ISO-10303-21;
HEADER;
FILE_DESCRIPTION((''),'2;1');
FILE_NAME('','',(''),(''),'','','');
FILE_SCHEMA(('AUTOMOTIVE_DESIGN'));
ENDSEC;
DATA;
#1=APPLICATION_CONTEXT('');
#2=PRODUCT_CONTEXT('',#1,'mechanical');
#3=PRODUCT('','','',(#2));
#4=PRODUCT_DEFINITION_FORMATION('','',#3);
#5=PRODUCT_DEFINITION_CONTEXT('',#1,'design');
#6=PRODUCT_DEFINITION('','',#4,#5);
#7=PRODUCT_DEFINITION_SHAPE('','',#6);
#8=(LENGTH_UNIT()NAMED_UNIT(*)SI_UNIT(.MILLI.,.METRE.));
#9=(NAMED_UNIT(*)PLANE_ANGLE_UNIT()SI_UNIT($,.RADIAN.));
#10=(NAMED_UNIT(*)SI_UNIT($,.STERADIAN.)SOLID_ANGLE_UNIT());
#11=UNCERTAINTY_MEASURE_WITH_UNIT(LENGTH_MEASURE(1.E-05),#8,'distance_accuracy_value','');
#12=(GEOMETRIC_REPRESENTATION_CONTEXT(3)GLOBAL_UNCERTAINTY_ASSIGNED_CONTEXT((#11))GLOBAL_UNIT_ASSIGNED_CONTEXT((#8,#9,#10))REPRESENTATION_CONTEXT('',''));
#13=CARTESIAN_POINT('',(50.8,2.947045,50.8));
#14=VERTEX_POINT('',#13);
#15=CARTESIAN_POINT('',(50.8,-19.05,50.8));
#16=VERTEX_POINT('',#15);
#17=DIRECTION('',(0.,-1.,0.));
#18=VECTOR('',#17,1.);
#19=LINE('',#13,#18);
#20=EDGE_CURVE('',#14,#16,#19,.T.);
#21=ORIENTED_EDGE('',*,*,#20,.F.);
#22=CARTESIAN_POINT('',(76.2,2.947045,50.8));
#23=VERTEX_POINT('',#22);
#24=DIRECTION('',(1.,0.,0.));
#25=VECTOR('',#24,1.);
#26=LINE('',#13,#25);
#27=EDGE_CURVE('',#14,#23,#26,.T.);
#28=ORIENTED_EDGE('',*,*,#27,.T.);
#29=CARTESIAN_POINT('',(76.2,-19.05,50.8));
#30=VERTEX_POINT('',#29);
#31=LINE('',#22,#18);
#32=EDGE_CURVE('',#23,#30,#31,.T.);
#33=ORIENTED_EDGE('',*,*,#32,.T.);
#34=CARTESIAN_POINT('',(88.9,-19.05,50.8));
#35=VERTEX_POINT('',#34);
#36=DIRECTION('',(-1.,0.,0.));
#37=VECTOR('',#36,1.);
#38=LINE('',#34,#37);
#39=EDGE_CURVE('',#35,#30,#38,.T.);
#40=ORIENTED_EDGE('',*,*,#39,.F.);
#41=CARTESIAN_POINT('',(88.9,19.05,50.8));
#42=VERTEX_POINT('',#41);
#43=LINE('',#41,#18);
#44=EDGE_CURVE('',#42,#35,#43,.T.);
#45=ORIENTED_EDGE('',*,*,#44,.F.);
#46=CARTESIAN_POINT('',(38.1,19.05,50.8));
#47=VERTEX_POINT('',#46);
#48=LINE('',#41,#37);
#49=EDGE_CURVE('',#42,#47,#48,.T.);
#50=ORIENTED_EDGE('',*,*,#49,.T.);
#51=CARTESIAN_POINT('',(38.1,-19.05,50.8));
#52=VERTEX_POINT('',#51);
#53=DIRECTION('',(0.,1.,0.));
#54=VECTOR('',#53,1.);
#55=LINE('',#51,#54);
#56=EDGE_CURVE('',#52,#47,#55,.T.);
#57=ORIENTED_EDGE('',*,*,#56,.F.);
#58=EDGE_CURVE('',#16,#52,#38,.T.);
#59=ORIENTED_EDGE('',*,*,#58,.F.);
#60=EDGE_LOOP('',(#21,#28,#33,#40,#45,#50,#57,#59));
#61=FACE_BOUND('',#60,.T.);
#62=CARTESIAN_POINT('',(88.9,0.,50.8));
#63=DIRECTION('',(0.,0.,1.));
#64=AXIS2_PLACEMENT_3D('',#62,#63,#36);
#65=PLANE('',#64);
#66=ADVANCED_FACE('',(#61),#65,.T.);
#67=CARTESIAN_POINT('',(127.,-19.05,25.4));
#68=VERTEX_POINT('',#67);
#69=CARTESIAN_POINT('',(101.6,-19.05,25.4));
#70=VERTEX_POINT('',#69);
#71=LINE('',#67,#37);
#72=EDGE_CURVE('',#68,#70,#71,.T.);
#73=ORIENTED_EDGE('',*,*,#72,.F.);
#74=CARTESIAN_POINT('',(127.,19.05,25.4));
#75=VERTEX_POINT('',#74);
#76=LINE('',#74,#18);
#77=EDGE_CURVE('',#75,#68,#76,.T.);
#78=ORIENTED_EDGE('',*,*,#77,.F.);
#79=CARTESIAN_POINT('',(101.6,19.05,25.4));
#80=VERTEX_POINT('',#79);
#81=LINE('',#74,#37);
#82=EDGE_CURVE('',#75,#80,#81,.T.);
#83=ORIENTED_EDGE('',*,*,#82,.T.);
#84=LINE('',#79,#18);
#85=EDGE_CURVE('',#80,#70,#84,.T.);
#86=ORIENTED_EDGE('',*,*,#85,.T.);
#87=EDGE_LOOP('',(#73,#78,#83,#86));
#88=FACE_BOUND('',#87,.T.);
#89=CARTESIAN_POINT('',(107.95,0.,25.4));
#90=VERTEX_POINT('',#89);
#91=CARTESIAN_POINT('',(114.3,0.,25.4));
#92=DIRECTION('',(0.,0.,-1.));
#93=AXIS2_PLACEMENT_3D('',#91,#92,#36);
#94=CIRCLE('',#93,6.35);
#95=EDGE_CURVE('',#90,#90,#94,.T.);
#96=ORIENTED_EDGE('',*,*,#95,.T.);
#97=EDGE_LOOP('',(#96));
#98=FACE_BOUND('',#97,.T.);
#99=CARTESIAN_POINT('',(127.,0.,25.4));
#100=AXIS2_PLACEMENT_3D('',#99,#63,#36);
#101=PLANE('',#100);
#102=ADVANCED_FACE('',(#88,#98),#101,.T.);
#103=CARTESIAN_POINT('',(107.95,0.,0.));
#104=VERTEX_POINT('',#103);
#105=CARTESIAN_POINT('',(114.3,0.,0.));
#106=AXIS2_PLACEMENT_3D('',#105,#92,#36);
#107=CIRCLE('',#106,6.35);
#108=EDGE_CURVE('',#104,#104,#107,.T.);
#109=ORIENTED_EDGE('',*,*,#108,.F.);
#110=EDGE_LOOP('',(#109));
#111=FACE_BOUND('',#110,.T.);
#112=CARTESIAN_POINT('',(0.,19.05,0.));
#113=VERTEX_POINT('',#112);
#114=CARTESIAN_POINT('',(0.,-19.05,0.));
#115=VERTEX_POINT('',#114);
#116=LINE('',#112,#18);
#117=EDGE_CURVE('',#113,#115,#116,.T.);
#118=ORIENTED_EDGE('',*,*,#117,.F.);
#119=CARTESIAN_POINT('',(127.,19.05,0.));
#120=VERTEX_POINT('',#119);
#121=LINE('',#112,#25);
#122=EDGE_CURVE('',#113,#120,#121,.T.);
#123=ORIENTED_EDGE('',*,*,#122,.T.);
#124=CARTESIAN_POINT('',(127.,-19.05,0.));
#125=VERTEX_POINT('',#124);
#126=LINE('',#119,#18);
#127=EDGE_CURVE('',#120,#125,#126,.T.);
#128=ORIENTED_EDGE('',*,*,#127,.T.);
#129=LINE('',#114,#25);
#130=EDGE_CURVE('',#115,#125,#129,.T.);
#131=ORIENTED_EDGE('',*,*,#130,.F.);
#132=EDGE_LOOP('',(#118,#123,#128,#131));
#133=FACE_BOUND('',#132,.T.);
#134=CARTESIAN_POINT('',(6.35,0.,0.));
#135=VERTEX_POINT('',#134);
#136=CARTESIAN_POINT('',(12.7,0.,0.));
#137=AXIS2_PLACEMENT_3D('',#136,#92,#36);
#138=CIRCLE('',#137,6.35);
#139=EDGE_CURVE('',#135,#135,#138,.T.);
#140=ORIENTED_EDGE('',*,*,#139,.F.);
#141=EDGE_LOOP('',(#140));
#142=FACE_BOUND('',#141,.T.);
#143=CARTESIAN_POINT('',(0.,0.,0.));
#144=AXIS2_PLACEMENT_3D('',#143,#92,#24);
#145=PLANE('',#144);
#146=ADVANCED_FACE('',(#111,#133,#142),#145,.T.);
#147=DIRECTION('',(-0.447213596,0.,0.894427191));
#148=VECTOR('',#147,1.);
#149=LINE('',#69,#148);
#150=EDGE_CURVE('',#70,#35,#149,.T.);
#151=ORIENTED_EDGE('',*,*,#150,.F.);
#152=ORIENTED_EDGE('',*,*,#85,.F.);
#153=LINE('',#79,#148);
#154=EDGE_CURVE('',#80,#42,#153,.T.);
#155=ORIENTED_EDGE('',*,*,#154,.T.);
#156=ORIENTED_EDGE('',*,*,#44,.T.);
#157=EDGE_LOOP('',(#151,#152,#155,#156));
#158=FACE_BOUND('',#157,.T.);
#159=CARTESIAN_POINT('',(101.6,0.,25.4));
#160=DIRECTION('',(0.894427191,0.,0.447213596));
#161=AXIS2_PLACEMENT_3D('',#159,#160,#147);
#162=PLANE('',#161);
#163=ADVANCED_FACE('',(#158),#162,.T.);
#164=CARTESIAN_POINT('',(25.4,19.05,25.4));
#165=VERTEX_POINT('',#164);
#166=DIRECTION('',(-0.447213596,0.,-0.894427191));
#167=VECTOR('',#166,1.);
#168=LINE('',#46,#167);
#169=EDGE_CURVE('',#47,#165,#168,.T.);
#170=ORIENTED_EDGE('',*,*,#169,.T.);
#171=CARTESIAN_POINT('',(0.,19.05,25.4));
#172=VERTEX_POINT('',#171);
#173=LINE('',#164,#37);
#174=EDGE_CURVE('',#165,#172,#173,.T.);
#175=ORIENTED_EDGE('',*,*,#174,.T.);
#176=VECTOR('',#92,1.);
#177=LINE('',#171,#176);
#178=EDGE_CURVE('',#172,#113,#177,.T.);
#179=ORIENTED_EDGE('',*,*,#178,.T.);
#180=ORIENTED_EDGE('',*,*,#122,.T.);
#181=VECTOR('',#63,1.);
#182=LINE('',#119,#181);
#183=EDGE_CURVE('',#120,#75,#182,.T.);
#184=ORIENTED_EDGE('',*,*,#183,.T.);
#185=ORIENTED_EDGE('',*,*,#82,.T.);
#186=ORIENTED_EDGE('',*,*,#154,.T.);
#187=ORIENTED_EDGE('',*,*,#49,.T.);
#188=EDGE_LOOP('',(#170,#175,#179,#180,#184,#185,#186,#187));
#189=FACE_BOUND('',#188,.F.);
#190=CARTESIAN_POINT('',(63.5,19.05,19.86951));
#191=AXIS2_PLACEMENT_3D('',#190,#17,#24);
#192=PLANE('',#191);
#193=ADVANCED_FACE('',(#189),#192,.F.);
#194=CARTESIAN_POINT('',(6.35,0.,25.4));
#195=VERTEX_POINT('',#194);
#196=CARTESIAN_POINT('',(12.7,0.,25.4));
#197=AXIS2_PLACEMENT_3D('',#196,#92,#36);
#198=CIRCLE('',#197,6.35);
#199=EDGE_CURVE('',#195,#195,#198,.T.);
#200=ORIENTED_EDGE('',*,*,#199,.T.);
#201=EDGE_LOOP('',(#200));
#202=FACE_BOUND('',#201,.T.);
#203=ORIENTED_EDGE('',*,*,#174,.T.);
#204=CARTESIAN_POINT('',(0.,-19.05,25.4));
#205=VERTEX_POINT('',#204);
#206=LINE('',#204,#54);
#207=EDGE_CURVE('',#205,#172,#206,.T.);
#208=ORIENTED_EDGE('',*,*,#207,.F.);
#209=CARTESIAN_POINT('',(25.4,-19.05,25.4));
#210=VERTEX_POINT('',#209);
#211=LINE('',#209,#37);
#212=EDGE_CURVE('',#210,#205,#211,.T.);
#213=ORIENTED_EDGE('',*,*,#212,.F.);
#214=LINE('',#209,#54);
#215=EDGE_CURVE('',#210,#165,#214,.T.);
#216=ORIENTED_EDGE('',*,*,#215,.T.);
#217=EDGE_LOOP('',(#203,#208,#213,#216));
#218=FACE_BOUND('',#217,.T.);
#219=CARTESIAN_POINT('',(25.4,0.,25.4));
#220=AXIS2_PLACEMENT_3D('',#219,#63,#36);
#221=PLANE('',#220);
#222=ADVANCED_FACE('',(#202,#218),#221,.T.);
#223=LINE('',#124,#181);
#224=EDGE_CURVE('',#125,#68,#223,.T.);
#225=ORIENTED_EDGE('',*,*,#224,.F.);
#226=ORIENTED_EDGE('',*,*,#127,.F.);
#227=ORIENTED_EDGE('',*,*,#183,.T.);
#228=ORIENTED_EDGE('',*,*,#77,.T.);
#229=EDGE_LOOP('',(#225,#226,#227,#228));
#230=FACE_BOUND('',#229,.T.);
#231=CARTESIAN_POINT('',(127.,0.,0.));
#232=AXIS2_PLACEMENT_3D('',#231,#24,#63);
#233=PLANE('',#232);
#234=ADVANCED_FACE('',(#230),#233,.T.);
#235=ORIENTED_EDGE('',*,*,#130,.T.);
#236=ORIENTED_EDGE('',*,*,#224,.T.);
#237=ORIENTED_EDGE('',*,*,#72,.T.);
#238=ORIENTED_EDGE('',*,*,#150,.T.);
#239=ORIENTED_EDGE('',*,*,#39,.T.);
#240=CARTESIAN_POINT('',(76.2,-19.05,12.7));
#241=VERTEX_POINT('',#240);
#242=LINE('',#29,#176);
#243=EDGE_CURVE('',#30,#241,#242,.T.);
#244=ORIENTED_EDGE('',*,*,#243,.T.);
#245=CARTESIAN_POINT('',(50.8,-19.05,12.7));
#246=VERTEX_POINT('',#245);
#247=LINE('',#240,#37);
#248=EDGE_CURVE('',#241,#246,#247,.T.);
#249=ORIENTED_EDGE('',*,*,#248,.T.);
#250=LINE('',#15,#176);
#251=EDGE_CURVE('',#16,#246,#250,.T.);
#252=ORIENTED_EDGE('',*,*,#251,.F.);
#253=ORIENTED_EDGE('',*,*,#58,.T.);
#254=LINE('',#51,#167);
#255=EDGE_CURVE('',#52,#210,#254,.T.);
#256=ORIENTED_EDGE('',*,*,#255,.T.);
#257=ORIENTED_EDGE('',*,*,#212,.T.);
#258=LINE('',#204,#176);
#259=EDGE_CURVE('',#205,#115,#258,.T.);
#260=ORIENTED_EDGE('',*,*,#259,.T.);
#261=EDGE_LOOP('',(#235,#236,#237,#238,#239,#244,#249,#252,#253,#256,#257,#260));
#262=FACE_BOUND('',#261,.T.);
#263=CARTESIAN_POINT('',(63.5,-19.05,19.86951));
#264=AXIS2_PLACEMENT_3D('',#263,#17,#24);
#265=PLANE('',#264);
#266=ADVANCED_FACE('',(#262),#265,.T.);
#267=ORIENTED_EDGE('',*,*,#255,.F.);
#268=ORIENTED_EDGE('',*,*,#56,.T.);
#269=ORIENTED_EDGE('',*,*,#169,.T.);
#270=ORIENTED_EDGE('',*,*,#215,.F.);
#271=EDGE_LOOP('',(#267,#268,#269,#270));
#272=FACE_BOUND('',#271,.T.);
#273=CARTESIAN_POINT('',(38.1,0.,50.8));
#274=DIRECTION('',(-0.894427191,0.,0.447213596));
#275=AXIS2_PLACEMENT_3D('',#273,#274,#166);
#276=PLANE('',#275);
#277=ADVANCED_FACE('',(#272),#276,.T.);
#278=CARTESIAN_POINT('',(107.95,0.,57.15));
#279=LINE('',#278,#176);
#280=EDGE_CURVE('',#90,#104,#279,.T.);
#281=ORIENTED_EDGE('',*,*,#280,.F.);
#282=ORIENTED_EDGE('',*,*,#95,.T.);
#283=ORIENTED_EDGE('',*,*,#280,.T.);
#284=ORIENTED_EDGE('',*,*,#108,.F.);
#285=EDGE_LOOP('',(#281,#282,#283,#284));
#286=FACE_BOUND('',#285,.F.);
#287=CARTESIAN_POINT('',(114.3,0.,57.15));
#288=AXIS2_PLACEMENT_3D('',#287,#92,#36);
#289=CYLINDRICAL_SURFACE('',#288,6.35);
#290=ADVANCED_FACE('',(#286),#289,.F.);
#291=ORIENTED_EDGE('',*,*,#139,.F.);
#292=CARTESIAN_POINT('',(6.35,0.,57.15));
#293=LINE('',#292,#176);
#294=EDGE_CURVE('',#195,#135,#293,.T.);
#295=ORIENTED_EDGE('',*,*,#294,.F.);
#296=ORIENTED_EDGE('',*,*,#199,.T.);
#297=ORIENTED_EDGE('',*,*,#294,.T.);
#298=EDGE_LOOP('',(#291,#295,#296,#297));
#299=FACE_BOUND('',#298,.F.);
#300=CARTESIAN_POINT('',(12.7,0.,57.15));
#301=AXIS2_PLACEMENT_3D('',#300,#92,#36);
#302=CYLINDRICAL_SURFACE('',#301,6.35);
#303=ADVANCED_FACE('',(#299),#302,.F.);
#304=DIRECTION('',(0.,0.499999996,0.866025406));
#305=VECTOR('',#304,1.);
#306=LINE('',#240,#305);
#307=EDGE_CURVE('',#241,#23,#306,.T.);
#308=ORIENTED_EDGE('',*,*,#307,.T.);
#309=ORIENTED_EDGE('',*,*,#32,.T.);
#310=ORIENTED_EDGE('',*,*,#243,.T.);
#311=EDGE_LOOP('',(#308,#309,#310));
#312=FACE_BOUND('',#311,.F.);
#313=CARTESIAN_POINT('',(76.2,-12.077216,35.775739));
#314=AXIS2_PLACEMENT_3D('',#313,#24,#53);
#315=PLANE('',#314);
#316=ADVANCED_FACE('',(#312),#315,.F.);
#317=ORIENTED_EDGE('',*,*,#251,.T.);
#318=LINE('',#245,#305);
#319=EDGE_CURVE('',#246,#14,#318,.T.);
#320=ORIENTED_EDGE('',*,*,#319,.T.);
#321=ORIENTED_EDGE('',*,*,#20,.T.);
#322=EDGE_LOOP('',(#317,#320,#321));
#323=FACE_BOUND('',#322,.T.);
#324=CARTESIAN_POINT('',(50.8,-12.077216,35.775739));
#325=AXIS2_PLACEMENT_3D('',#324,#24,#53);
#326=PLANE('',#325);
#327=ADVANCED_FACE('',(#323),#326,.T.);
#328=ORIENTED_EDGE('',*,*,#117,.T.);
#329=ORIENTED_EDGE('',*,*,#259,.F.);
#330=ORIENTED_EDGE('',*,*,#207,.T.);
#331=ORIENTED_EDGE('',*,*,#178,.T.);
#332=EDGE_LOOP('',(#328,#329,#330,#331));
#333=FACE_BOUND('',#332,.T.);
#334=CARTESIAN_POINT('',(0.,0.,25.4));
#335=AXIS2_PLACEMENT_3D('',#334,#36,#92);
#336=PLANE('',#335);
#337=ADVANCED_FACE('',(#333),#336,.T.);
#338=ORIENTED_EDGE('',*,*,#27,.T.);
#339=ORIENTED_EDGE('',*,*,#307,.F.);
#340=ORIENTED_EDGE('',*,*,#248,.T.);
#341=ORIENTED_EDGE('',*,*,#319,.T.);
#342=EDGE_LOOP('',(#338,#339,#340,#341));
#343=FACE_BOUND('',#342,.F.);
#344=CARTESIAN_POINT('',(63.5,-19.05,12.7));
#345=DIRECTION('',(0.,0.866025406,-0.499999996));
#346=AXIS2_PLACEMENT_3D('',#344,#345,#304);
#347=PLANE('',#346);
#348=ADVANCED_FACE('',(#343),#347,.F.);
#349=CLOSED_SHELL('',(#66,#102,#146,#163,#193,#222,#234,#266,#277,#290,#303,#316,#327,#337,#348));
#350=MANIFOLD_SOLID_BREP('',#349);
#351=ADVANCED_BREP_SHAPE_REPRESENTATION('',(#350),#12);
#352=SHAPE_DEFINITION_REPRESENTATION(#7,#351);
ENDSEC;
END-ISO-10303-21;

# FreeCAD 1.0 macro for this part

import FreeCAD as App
import Part
import Sketcher
from FreeCAD import Vector
Q = App.Units.Quantity


def add_polygon(sketch, points):
    """Adds a closed chain of lines whose ends are joined by coincident constraints."""
    first, n = sketch.GeometryCount, len(points)
    for a, b in zip(points, points[1:] + points[:1]):
        sketch.addGeometry(Part.LineSegment(App.Vector(*a, 0), App.Vector(*b, 0)), False)
    for i in range(n):
        sketch.addConstraint(Sketcher.Constraint("Coincident", first + i, 2, first + (i + 1) % n, 1))

doc = App.newDocument("Part")
params = doc.addObject("Spreadsheet::Sheet", "Params")
for row, (alias, value) in enumerate([
    ("sketch1_width", "5 in"),
    ("sketch1_width2", "1 in"),
    ("sketch1_width3", "2 in"),
    ("pad1_length", "1.5 in"),
    ("sketch2_diameter", "0.5 in"),
    ("hole_diameter", "0.5 in"),
    ("hole_depth", "1.25 in"),
    ("sketch3_height", "1.5 in"),
    ("pocket1_length", "1 in"),
], start=1):
    params.set(f"A{row}", alias)
    params.set(f"B{row}", "=" + value)
    params.setAlias(f"B{row}", alias)

body = doc.addObject("PartDesign::Body", "Body")

# Sketch on XZ plane
sketch1 = body.newObject("Sketcher::SketchObject", "Sketch")
sketch1.AttachmentSupport = (doc.getObject("XZ_Plane"), [""])
sketch1.MapMode = "FlatFace"
add_polygon(sketch1, [(0, 25), (0, 0), (127, 0), (127, 25), (102, 25), (89, 51), (38, 51), (25, 25)])  # lines 0-7
sketch1.addConstraint([
    Sketcher.Constraint("Vertical", 0),
    Sketcher.Constraint("Horizontal", 1),
    Sketcher.Constraint("Vertical", 2),
    Sketcher.Constraint("Horizontal", 3),
    Sketcher.Constraint("Horizontal", 5),
    Sketcher.Constraint("Horizontal", 7),
    Sketcher.Constraint("Coincident", 0, 2, -1, 1),
    Sketcher.Constraint("Horizontal", 3, 2, 6, 2),
    Sketcher.Constraint("Equal", 3, 7),
    Sketcher.Constraint("Equal", 7, 0),
    Sketcher.Constraint("Equal", 4, 6),
    Sketcher.Constraint("DistanceX", 1, 1, 1, 2, Q("5 in")),
    Sketcher.Constraint("DistanceX", 3, 2, 3, 1, Q("1 in")),
    Sketcher.Constraint("DistanceX", 5, 2, 5, 1, Q("2 in")),
    Sketcher.Constraint("DistanceY", -1, 1, 4, 2, Q("2 in")),
])
sketch1.setExpression("Constraints[19]", "Params.sketch1_width")
sketch1.setExpression("Constraints[20]", "Params.sketch1_width2")
sketch1.setExpression("Constraints[21]", "Params.sketch1_width3")
pad1 = body.newObject("PartDesign::Pad", "Pad")
pad1.Profile = sketch1
pad1.setExpression("Length", "Params.pad1_length")
pad1.Midplane = True

# Sketch on XY plane
sketch2 = body.newObject("Sketcher::SketchObject", "Sketch001")
sketch2.AttachmentSupport = (doc.getObject("XY_Plane"), [""])
sketch2.MapMode = "FlatFace"
sketch2.AttachmentOffset = App.Placement(Vector(0, 0, 1 * 25.4), App.Rotation())
sketch2.addGeometry([
    Part.Circle(Vector(13, 0, 0), Vector(0, 0, 1), 6),
    Part.Circle(Vector(114, 0, 0), Vector(0, 0, 1), 6),
], False)
sketch2.addConstraint([
    Sketcher.Constraint("Equal", 0, 1),
    Sketcher.Constraint("PointOnObject", 0, 3, -1),
    Sketcher.Constraint("PointOnObject", 1, 3, -1),
    Sketcher.Constraint("Diameter", 0, Q("0.5 in")),
    Sketcher.Constraint("DistanceX", 0, 3, 1, 3, Q("4 in")),
    Sketcher.Constraint("DistanceX", -1, 1, 0, 3, Q("0.5 in")),
])
sketch2.setExpression("Constraints[3]", "Params.sketch2_diameter")
doc.recompute()
hole = body.newObject("PartDesign::Hole", "Hole")
hole.Profile = sketch2
hole.ThreadType = "None"
hole.setExpression("Diameter", "Params.hole_diameter")
hole.DepthType = "Dimension"
hole.setExpression("Depth", "Params.hole_depth")
hole.DrillPoint = "Flat"

# Sketch on YZ plane
sketch3 = body.newObject("Sketcher::SketchObject", "Sketch002")
sketch3.AttachmentSupport = (doc.getObject("YZ_Plane"), [""])
sketch3.MapMode = "FlatFace"
sketch3.AttachmentOffset = App.Placement(Vector(0, 0, 2.5 * 25.4), App.Rotation())
add_polygon(sketch3, [(-19, 13), (3, 51), (-19, 51)])  # lines 0-2
sketch3.addConstraint([
    Sketcher.Constraint("Horizontal", 1),
    Sketcher.Constraint("Vertical", 2),
    Sketcher.Constraint("DistanceY", 2, 2, 2, 1, Q("1.5 in")),
    Sketcher.Constraint("DistanceY", -1, 1, 0, 2, Q("2 in")),
    Sketcher.Constraint("Angle", 0, Q("60 deg")),
    Sketcher.Constraint("DistanceX", 1, 2, -1, 1, Q("0.75 in")),
])
sketch3.setExpression("Constraints[5]", "Params.sketch3_height")
pocket1 = body.newObject("PartDesign::Pocket", "Pocket")
pocket1.Profile = sketch3
pocket1.setExpression("Length", "Params.pocket1_length")
pocket1.Midplane = True

doc.recompute()
